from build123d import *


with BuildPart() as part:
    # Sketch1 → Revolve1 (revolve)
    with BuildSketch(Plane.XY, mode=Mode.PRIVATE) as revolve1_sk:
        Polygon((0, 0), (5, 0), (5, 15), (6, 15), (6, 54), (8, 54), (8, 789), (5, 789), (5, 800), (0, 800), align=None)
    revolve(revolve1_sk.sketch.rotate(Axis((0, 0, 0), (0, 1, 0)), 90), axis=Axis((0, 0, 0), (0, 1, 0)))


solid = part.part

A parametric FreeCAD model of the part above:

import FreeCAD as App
import Part
import Sketcher
Q = App.Units.Quantity


def add_polygon(sketch, points):
    """Adds a closed chain of lines whose ends are joined by coincident constraints."""
    first, n = sketch.GeometryCount, len(points)
    for a, b in zip(points, points[1:] + points[:1]):
        sketch.addGeometry(Part.LineSegment(App.Vector(*a, 0), App.Vector(*b, 0)), False)
    for i in range(n):
        sketch.addConstraint(Sketcher.Constraint("Coincident", first + i, 2, first + (i + 1) % n, 1))

doc = App.newDocument("Part")
params = doc.addObject("Spreadsheet::Sheet", "Params")
for row, (alias, value) in enumerate([
    ("sketch1_width", "5 mm"),
    ("sketch1_width2", "1 mm"),
    ("sketch1_width3", "2 mm"),
    ("sketch1_height", "15 mm"),
    ("sketch1_height2", "39 mm"),
    ("revolution_angle", "360 deg"),
], start=1):
    params.set(f"A{row}", alias)
    params.set(f"B{row}", "=" + value)
    params.setAlias(f"B{row}", alias)

body = doc.addObject("PartDesign::Body", "Body")

# Sketch on XY plane
sketch1 = doc.addObject("Sketcher::SketchObject", "Sketch")
body.addObject(sketch1)
sketch1.AttachmentSupport = (doc.XY_Plane, [""])
sketch1.MapMode = "FlatFace"
add_polygon(sketch1, [(0, 0), (5, 0), (5, 15), (6, 15), (6, 54), (8, 54), (8, 789), (5, 789), (5, 800), (0, 800)])  # lines 0-9
sketch1.addConstraint(Sketcher.Constraint("Horizontal", 0))
sketch1.addConstraint(Sketcher.Constraint("Vertical", 1))
sketch1.addConstraint(Sketcher.Constraint("Horizontal", 2))
sketch1.addConstraint(Sketcher.Constraint("Vertical", 3))
sketch1.addConstraint(Sketcher.Constraint("Horizontal", 4))
sketch1.addConstraint(Sketcher.Constraint("Vertical", 5))
sketch1.addConstraint(Sketcher.Constraint("Horizontal", 6))
sketch1.addConstraint(Sketcher.Constraint("Vertical", 7))
sketch1.addConstraint(Sketcher.Constraint("Horizontal", 8))
sketch1.addConstraint(Sketcher.Constraint("Vertical", 9))
sketch1.addConstraint(Sketcher.Constraint("Coincident", 9, 2, -1, 1))
sketch1.addConstraint(Sketcher.Constraint("Vertical", 1, 2, 6, 2))
sketch1.addConstraint(Sketcher.Constraint("DistanceX", 0, 1, 0, 2, Q("5 mm")))
sketch1.addConstraint(Sketcher.Constraint("DistanceX", 2, 1, 2, 2, Q("1 mm")))
sketch1.addConstraint(Sketcher.Constraint("DistanceX", 4, 1, 4, 2, Q("2 mm")))
sketch1.addConstraint(Sketcher.Constraint("DistanceY", 1, 1, 1, 2, Q("15 mm")))
sketch1.addConstraint(Sketcher.Constraint("DistanceY", 3, 1, 3, 2, Q("39 mm")))
sketch1.addConstraint(Sketcher.Constraint("DistanceY", 5, 1, 5, 2, Q("735 mm")))
sketch1.addConstraint(Sketcher.Constraint("DistanceY", 7, 1, 7, 2, Q("11 mm")))
sketch1.setExpression("Constraints[22]", "Params.sketch1_width")
sketch1.setExpression("Constraints[23]", "Params.sketch1_width2")
sketch1.setExpression("Constraints[24]", "Params.sketch1_width3")
sketch1.setExpression("Constraints[25]", "Params.sketch1_height")
sketch1.setExpression("Constraints[26]", "Params.sketch1_height2")
revolution = doc.addObject("PartDesign::Revolution", "Revolution")
body.addObject(revolution)
revolution.Profile = sketch1
revolution.ReferenceAxis = (sketch1, ["V_Axis"])
revolution.setExpression("Angle", "Params.revolution_angle")

doc.recompute()
